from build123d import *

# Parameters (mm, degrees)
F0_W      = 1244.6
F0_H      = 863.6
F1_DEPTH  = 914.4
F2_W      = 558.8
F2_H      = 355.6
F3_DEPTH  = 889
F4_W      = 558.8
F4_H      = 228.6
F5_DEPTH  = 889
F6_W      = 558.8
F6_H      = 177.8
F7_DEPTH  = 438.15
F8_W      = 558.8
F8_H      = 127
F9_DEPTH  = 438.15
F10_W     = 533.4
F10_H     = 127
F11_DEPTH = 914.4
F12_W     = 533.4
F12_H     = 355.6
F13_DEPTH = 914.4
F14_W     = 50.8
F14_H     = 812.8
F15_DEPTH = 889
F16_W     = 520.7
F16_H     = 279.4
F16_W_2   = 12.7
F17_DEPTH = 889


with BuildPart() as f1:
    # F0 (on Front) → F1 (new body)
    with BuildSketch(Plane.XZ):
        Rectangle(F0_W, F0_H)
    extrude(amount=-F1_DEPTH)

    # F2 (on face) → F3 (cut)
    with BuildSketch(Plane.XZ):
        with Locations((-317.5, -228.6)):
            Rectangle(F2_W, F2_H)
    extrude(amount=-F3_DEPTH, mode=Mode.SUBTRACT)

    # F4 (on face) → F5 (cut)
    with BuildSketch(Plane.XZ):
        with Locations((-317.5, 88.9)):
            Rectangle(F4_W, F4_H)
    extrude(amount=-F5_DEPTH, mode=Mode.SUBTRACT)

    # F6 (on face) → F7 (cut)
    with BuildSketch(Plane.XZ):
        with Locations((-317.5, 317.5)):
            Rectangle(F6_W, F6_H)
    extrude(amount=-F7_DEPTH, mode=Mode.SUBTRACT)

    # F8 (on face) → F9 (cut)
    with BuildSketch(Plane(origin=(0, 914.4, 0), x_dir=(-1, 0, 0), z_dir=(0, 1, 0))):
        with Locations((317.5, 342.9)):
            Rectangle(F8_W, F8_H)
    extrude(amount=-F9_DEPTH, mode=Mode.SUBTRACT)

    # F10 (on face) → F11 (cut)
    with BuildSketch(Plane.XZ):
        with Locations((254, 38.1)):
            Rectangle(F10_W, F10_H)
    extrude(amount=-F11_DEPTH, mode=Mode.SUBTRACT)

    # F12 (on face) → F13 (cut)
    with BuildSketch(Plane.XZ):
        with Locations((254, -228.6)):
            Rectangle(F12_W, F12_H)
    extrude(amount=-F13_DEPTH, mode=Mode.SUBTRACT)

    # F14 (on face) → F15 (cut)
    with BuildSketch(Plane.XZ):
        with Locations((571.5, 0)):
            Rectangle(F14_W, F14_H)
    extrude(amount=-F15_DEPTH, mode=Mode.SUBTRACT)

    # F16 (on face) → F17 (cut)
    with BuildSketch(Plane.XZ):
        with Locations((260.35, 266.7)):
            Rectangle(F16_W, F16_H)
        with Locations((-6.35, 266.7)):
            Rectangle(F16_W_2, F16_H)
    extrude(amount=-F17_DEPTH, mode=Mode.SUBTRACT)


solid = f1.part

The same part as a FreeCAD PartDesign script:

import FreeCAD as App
import Part
import Sketcher
Q = App.Units.Quantity


def add_polygon(sketch, points):
    """Adds a closed chain of lines whose ends are joined by coincident constraints."""
    first, n = sketch.GeometryCount, len(points)
    for a, b in zip(points, points[1:] + points[:1]):
        sketch.addGeometry(Part.LineSegment(App.Vector(*a, 0), App.Vector(*b, 0)), False)
    for i in range(n):
        sketch.addConstraint(Sketcher.Constraint("Coincident", first + i, 2, first + (i + 1) % n, 1))

doc = App.newDocument("Part")
body = doc.addObject("PartDesign::Body", "Body")

# Sketch on XZ plane
sketch1 = body.newObject("Sketcher::SketchObject", "Sketch")
sketch1.AttachmentSupport = (doc.getObject("XZ_Plane"), [""])
sketch1.MapMode = "FlatFace"
add_polygon(sketch1, [(-622.3, 431.8), (-622.3, -431.8), (622.3, -431.8), (622.3, 431.8)])  # lines 0-3
sketch1.addConstraint(Sketcher.Constraint("Vertical", 0))
sketch1.addConstraint(Sketcher.Constraint("Horizontal", 1))
sketch1.addConstraint(Sketcher.Constraint("Vertical", 2))
sketch1.addConstraint(Sketcher.Constraint("Horizontal", 3))
sketch1.addConstraint(Sketcher.Constraint("Symmetric", 0, 2, 2, 2, -1, 1))
sketch1.addConstraint(Sketcher.Constraint("DistanceX", 1, 1, 1, 2, Q("49 in")))
sketch1.addConstraint(Sketcher.Constraint("DistanceY", 0, 2, 0, 1, Q("34 in")))
pad1 = body.newObject("PartDesign::Pad", "Pad")
pad1.Profile = sketch1
pad1.Length = Q("36 in")
pad1.Reversed = True

# Sketch on XZ plane
sketch2 = body.newObject("Sketcher::SketchObject", "Sketch001")
sketch2.AttachmentSupport = (doc.getObject("XZ_Plane"), [""])
sketch2.MapMode = "FlatFace"
add_polygon(sketch2, [(-596.9, -50.8), (-596.9, -406.4), (-38.1, -406.4), (-38.1, -50.8)])  # lines 0-3
sketch2.addConstraint(Sketcher.Constraint("Vertical", 0))
sketch2.addConstraint(Sketcher.Constraint("Horizontal", 1))
sketch2.addConstraint(Sketcher.Constraint("Vertical", 2))
sketch2.addConstraint(Sketcher.Constraint("Horizontal", 3))
sketch2.addConstraint(Sketcher.Constraint("DistanceX", 1, 1, 1, 2, Q("22 in")))
sketch2.addConstraint(Sketcher.Constraint("DistanceY", 0, 2, 0, 1, Q("14 in")))
sketch2.addConstraint(Sketcher.Constraint("DistanceY", 0, 2, -1, 1, Q("16 in")))
sketch2.addConstraint(Sketcher.Constraint("DistanceX", 0, 2, -1, 1, Q("23.5 in")))
pocket1 = body.newObject("PartDesign::Pocket", "Pocket")
pocket1.Profile = sketch2
pocket1.Length = Q("35 in")

# Sketch on XZ plane
sketch3 = body.newObject("Sketcher::SketchObject", "Sketch002")
sketch3.AttachmentSupport = (doc.getObject("XZ_Plane"), [""])
sketch3.MapMode = "FlatFace"
add_polygon(sketch3, [(-596.9, 203.2), (-596.9, -25.4), (-38.1, -25.4), (-38.1, 203.2)])  # lines 0-3
sketch3.addConstraint(Sketcher.Constraint("Vertical", 0))
sketch3.addConstraint(Sketcher.Constraint("Horizontal", 1))
sketch3.addConstraint(Sketcher.Constraint("Vertical", 2))
sketch3.addConstraint(Sketcher.Constraint("Horizontal", 3))
sketch3.addConstraint(Sketcher.Constraint("DistanceX", 1, 1, 1, 2, Q("22 in")))
sketch3.addConstraint(Sketcher.Constraint("DistanceY", 0, 2, 0, 1, Q("9 in")))
sketch3.addConstraint(Sketcher.Constraint("DistanceY", 0, 2, -1, 1, Q("1 in")))
sketch3.addConstraint(Sketcher.Constraint("DistanceX", 0, 2, -1, 1, Q("23.5 in")))
pocket2 = body.newObject("PartDesign::Pocket", "Pocket001")
pocket2.Profile = sketch3
pocket2.Length = Q("35 in")

# Sketch on XZ plane
sketch4 = body.newObject("Sketcher::SketchObject", "Sketch003")
sketch4.AttachmentSupport = (doc.getObject("XZ_Plane"), [""])
sketch4.MapMode = "FlatFace"
add_polygon(sketch4, [(-596.9, 406.4), (-596.9, 228.6), (-38.1, 228.6), (-38.1, 406.4)])  # lines 0-3
sketch4.addConstraint(Sketcher.Constraint("Vertical", 0))
sketch4.addConstraint(Sketcher.Constraint("Horizontal", 1))
sketch4.addConstraint(Sketcher.Constraint("Vertical", 2))
sketch4.addConstraint(Sketcher.Constraint("Horizontal", 3))
sketch4.addConstraint(Sketcher.Constraint("DistanceX", 1, 1, 1, 2, Q("22 in")))
sketch4.addConstraint(Sketcher.Constraint("DistanceY", 0, 2, 0, 1, Q("7 in")))
sketch4.addConstraint(Sketcher.Constraint("DistanceY", -1, 1, 0, 2, Q("9 in")))
sketch4.addConstraint(Sketcher.Constraint("DistanceX", 0, 2, -1, 1, Q("23.5 in")))
pocket3 = body.newObject("PartDesign::Pocket", "Pocket002")
pocket3.Profile = sketch4
pocket3.Length = Q("17.25 in")

# Sketch on XZ plane
sketch5 = body.newObject("Sketcher::SketchObject", "Sketch004")
sketch5.AttachmentSupport = (doc.getObject("XZ_Plane"), [""])
sketch5.MapMode = "FlatFace"
sketch5.AttachmentOffset = App.Placement(App.Vector(0, 0, -36 * 25.4), App.Rotation())
add_polygon(sketch5, [(-38.1, 406.4), (-38.1, 279.4), (-596.9, 279.4), (-596.9, 406.4)])  # lines 0-3
sketch5.addConstraint(Sketcher.Constraint("Vertical", 0))
sketch5.addConstraint(Sketcher.Constraint("Horizontal", 1))
sketch5.addConstraint(Sketcher.Constraint("Vertical", 2))
sketch5.addConstraint(Sketcher.Constraint("Horizontal", 3))
sketch5.addConstraint(Sketcher.Constraint("DistanceX", 1, 2, 1, 1, Q("22 in")))
sketch5.addConstraint(Sketcher.Constraint("DistanceY", 0, 2, 0, 1, Q("5 in")))
sketch5.addConstraint(Sketcher.Constraint("DistanceY", -1, 1, 0, 2, Q("11 in")))
sketch5.addConstraint(Sketcher.Constraint("DistanceX", 0, 2, -1, 1, Q("1.5 in")))
pocket4 = body.newObject("PartDesign::Pocket", "Pocket003")
pocket4.Profile = sketch5
pocket4.Length = Q("17.25 in")
pocket4.Reversed = True

# Sketch on XZ plane
sketch6 = body.newObject("Sketcher::SketchObject", "Sketch005")
sketch6.AttachmentSupport = (doc.getObject("XZ_Plane"), [""])
sketch6.MapMode = "FlatFace"
add_polygon(sketch6, [(-12.7, 101.6), (-12.7, -25.4), (520.7, -25.4), (520.7, 101.6)])  # lines 0-3
sketch6.addConstraint(Sketcher.Constraint("Vertical", 0))
sketch6.addConstraint(Sketcher.Constraint("Horizontal", 1))
sketch6.addConstraint(Sketcher.Constraint("Vertical", 2))
sketch6.addConstraint(Sketcher.Constraint("Horizontal", 3))
sketch6.addConstraint(Sketcher.Constraint("DistanceX", 1, 1, 1, 2, Q("21 in")))
sketch6.addConstraint(Sketcher.Constraint("DistanceY", 0, 2, 0, 1, Q("5 in")))
sketch6.addConstraint(Sketcher.Constraint("DistanceY", 0, 2, -1, 1, Q("1 in")))
sketch6.addConstraint(Sketcher.Constraint("DistanceX", 0, 2, -1, 1, Q("0.5 in")))
pocket5 = body.newObject("PartDesign::Pocket", "Pocket004")
pocket5.Profile = sketch6
pocket5.Length = Q("36 in")

# Sketch on XZ plane
sketch7 = body.newObject("Sketcher::SketchObject", "Sketch006")
sketch7.AttachmentSupport = (doc.getObject("XZ_Plane"), [""])
sketch7.MapMode = "FlatFace"
add_polygon(sketch7, [(-12.7, -50.8), (-12.7, -406.4), (520.7, -406.4), (520.7, -50.8)])  # lines 0-3
sketch7.addConstraint(Sketcher.Constraint("Vertical", 0))
sketch7.addConstraint(Sketcher.Constraint("Horizontal", 1))
sketch7.addConstraint(Sketcher.Constraint("Vertical", 2))
sketch7.addConstraint(Sketcher.Constraint("Horizontal", 3))
sketch7.addConstraint(Sketcher.Constraint("DistanceX", 1, 1, 1, 2, Q("21 in")))
sketch7.addConstraint(Sketcher.Constraint("DistanceY", 0, 2, 0, 1, Q("14 in")))
sketch7.addConstraint(Sketcher.Constraint("DistanceY", 0, 2, -1, 1, Q("16 in")))
sketch7.addConstraint(Sketcher.Constraint("DistanceX", 0, 2, -1, 1, Q("0.5 in")))
pocket6 = body.newObject("PartDesign::Pocket", "Pocket005")
pocket6.Profile = sketch7
pocket6.Length = Q("36 in")

# Sketch on XZ plane
sketch8 = body.newObject("Sketcher::SketchObject", "Sketch007")
sketch8.AttachmentSupport = (doc.getObject("XZ_Plane"), [""])
sketch8.MapMode = "FlatFace"
add_polygon(sketch8, [(546.1, 406.4), (546.1, -406.4), (596.9, -406.4), (596.9, 406.4)])  # lines 0-3
sketch8.addConstraint(Sketcher.Constraint("Vertical", 0))
sketch8.addConstraint(Sketcher.Constraint("Horizontal", 1))
sketch8.addConstraint(Sketcher.Constraint("Vertical", 2))
sketch8.addConstraint(Sketcher.Constraint("Horizontal", 3))
sketch8.addConstraint(Sketcher.Constraint("DistanceX", 1, 1, 1, 2, Q("2 in")))
sketch8.addConstraint(Sketcher.Constraint("DistanceY", 0, 2, 0, 1, Q("32 in")))
sketch8.addConstraint(Sketcher.Constraint("DistanceY", 0, 2, -1, 1, Q("16 in")))
sketch8.addConstraint(Sketcher.Constraint("DistanceX", -1, 1, 0, 2, Q("21.5 in")))
pocket7 = body.newObject("PartDesign::Pocket", "Pocket006")
pocket7.Profile = sketch8
pocket7.Length = Q("35 in")

# Sketch on XZ plane
sketch9 = body.newObject("Sketcher::SketchObject", "Sketch008")
sketch9.AttachmentSupport = (doc.getObject("XZ_Plane"), [""])
sketch9.MapMode = "FlatFace"
add_polygon(sketch9, [(520.7, 127), (520.7, 406.4), (-12.7, 406.4), (-12.7, 127)])  # lines 0-3
sketch9.addConstraint(Sketcher.Constraint("Vertical", 0))
sketch9.addConstraint(Sketcher.Constraint("Horizontal", 1))
sketch9.addConstraint(Sketcher.Constraint("Vertical", 2))
sketch9.addConstraint(Sketcher.Constraint("Horizontal", 3))
sketch9.addConstraint(Sketcher.Constraint("DistanceX", 1, 2, 1, 1, Q("21 in")))
sketch9.addConstraint(Sketcher.Constraint("DistanceY", 0, 1, 0, 2, Q("11 in")))
sketch9.addConstraint(Sketcher.Constraint("DistanceY", -1, 1, 0, 2, Q("16 in")))
sketch9.addConstraint(Sketcher.Constraint("DistanceX", -1, 1, 0, 2, Q("20.5 in")))
pocket8 = body.newObject("PartDesign::Pocket", "Pocket007")
pocket8.Profile = sketch9
pocket8.Length = Q("35 in")

doc.recompute()
